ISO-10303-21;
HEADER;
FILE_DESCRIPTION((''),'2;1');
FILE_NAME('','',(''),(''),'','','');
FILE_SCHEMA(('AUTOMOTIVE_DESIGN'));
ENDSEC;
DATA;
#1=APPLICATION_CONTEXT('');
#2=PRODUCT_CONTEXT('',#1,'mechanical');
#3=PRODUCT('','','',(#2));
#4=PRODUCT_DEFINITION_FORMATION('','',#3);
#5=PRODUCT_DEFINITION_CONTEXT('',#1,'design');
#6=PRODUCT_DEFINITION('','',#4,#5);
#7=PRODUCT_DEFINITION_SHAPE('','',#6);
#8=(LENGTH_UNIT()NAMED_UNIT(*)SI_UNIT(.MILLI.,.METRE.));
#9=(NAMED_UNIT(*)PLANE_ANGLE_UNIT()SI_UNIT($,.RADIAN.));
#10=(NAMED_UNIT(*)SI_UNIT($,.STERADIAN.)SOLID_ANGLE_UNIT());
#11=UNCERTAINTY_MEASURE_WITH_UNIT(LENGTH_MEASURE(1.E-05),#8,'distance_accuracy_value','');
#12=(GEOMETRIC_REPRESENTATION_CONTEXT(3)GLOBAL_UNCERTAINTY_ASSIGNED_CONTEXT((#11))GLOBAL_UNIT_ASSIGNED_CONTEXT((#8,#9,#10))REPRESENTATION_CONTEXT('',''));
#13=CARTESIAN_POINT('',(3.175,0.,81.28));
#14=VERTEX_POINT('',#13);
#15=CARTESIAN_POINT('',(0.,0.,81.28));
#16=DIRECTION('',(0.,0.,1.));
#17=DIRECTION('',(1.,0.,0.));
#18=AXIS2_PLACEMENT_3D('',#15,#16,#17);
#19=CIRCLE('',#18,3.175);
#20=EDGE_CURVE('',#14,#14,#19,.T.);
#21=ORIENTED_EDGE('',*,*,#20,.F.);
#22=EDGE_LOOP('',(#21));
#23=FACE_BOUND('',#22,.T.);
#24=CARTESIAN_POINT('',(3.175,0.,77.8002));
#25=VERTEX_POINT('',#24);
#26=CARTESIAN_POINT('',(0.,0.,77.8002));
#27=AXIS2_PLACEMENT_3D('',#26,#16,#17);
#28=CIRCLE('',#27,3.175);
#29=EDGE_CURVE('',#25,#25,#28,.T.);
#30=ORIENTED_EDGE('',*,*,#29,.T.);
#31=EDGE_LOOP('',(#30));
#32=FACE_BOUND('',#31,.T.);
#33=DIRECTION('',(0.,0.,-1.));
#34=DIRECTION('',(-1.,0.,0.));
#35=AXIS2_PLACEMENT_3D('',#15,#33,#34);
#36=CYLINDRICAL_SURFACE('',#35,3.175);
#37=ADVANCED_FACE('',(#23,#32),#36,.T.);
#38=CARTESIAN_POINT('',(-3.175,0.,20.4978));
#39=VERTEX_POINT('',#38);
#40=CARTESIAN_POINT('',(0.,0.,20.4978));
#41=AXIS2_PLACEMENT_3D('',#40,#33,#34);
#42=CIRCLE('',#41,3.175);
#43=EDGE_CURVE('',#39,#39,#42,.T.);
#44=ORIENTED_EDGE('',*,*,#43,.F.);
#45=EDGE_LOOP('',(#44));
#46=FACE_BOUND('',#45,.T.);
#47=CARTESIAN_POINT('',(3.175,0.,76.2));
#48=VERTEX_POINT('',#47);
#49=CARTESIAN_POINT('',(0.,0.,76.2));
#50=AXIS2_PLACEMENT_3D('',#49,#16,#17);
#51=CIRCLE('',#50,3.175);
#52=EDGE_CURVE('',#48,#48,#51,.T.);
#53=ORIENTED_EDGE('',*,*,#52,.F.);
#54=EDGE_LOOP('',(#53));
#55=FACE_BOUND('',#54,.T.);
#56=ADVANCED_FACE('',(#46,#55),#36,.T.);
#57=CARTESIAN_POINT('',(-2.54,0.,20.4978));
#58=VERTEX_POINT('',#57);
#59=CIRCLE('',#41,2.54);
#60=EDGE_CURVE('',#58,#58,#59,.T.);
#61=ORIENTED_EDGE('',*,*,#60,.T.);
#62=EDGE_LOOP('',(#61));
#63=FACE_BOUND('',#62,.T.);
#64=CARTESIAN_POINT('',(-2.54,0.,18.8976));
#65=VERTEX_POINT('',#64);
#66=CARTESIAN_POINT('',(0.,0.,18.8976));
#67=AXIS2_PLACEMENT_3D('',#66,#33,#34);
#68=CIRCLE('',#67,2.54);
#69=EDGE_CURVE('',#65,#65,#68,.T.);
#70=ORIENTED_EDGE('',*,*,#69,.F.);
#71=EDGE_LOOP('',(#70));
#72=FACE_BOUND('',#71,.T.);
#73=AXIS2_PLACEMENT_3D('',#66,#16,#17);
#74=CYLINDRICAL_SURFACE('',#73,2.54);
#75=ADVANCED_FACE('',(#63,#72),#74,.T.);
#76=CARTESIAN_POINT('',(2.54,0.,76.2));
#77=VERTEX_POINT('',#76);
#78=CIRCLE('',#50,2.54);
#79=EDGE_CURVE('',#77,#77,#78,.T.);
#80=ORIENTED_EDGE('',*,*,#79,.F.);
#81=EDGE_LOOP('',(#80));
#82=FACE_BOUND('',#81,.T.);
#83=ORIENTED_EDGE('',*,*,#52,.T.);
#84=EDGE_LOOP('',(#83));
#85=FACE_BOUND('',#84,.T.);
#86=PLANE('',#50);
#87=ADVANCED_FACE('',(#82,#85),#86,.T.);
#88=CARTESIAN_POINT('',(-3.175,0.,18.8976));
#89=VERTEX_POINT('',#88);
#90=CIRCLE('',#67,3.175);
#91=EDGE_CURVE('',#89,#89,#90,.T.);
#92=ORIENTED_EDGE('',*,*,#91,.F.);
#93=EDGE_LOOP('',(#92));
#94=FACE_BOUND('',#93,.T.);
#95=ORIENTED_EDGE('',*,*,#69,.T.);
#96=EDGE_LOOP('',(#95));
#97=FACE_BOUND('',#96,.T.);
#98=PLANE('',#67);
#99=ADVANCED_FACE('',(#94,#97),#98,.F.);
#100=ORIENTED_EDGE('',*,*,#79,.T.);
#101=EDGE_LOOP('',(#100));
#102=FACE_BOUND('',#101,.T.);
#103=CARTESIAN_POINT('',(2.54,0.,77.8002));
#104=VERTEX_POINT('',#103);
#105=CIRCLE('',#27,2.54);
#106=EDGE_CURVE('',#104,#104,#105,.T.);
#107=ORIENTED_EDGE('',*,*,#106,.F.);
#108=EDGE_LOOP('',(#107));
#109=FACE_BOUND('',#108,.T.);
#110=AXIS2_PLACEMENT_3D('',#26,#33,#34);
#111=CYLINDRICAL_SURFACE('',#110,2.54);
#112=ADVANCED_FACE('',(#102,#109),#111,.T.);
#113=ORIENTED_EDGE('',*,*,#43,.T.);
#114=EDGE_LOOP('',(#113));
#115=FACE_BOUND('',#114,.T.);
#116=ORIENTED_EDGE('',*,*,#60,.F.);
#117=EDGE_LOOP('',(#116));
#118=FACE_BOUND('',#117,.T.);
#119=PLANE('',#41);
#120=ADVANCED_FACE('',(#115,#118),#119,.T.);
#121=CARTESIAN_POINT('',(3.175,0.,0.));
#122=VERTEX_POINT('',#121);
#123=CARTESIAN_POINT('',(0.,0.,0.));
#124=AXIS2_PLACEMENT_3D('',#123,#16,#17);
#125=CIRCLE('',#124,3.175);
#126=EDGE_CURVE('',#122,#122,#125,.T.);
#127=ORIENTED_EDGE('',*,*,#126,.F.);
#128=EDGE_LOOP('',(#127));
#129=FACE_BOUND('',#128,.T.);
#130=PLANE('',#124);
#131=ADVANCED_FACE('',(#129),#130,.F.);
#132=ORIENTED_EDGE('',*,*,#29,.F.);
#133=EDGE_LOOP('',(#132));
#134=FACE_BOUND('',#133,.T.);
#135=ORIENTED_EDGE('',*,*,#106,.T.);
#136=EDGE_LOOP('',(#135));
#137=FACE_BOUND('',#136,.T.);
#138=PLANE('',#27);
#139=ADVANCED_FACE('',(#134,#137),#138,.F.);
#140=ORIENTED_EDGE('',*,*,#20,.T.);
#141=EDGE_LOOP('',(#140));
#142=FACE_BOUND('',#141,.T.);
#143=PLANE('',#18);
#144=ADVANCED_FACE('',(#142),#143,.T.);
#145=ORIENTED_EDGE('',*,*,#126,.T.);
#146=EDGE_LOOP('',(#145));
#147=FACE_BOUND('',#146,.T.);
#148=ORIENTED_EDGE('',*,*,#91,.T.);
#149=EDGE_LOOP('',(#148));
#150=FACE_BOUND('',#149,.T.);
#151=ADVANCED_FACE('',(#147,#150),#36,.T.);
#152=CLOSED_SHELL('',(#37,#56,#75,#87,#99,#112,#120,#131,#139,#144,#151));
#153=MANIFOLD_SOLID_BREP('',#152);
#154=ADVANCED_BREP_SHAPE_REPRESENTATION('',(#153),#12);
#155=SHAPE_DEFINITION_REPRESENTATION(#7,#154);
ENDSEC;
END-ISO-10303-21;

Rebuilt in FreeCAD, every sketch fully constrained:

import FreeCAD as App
import Part
import Sketcher
from FreeCAD import Vector
Q = App.Units.Quantity


def add_polygon(sketch, points):
    """Adds a closed chain of lines whose ends are joined by coincident constraints."""
    first, n = sketch.GeometryCount, len(points)
    for a, b in zip(points, points[1:] + points[:1]):
        sketch.addGeometry(Part.LineSegment(App.Vector(*a, 0), App.Vector(*b, 0)), False)
    for i in range(n):
        sketch.addConstraint(Sketcher.Constraint("Coincident", first + i, 2, first + (i + 1) % n, 1))

doc = App.newDocument("Part")
body = doc.addObject("PartDesign::Body", "Body")

# Sketch on XY plane
sketch1 = body.newObject("Sketcher::SketchObject", "Sketch")
sketch1.AttachmentSupport = (doc.getObject("XY_Plane"), [""])
sketch1.MapMode = "FlatFace"
sketch1.addGeometry(Part.Circle(Vector(0, 0, 0), Vector(0, 0, 1), 3.175), False)
sketch1.addConstraint([
    Sketcher.Constraint("Coincident", 0, 3, -1, 1),
    Sketcher.Constraint("Diameter", 0, Q("0.25 in")),
])
pad1 = body.newObject("PartDesign::Pad", "Pad")
pad1.Profile = sketch1
pad1.Length = Q("3.2 in")

# Sketch on XY plane
sketch2 = body.newObject("Sketcher::SketchObject", "Sketch001")
sketch2.AttachmentSupport = (doc.getObject("XY_Plane"), [""])
sketch2.MapMode = "FlatFace"
sketch2.AttachmentOffset = App.Placement(Vector(0, 0, 0.807 * 25.4), App.Rotation())
add_polygon(sketch2, [(12.352, 12.352), (12.352, -12.352), (-12.352, -12.352), (-12.352, 12.352)])  # lines 0-3
sketch2.addGeometry(Part.Circle(Vector(0, 0, 0), Vector(0, 0, 1), 2.54), False)  # 4
sketch2.addConstraint([
    Sketcher.Constraint("Vertical", 0),
    Sketcher.Constraint("Horizontal", 1),
    Sketcher.Constraint("Vertical", 2),
    Sketcher.Constraint("Horizontal", 3),
    Sketcher.Constraint("Coincident", 4, 3, -1, 1),
    Sketcher.Constraint("Symmetric", 0, 2, 2, 2, -1, 1),
    Sketcher.Constraint("Equal", 3, 0),
    Sketcher.Constraint("Diameter", 4, Q("0.2 in")),
    Sketcher.Constraint("DistanceX", 1, 2, 1, 1, 24.704),
])
pocket1 = body.newObject("PartDesign::Pocket", "Pocket")
pocket1.Profile = sketch2
pocket1.Length = Q("0.063 in")

# Sketch on XY plane
sketch3 = body.newObject("Sketcher::SketchObject", "Sketch002")
sketch3.AttachmentSupport = (doc.getObject("XY_Plane"), [""])
sketch3.MapMode = "FlatFace"
sketch3.AttachmentOffset = App.Placement(Vector(0, 0, 3 * 25.4), App.Rotation())
add_polygon(sketch3, [(-12.352, 12.352), (-12.352, -12.352), (12.352, -12.352), (12.352, 12.352)])  # lines 0-3
sketch3.addGeometry(Part.Circle(Vector(0, 0, 0), Vector(0, 0, 1), 2.54), False)  # 4
sketch3.addConstraint([
    Sketcher.Constraint("Vertical", 0),
    Sketcher.Constraint("Horizontal", 1),
    Sketcher.Constraint("Vertical", 2),
    Sketcher.Constraint("Horizontal", 3),
    Sketcher.Constraint("Coincident", 4, 3, -1, 1),
    Sketcher.Constraint("Symmetric", 0, 2, 2, 2, -1, 1),
    Sketcher.Constraint("Equal", 3, 0),
    Sketcher.Constraint("Diameter", 4, Q("0.2 in")),
    Sketcher.Constraint("DistanceX", 1, 1, 1, 2, 24.704),
])
pocket2 = body.newObject("PartDesign::Pocket", "Pocket001")
pocket2.Profile = sketch3
pocket2.Length = Q("0.063 in")
pocket2.Reversed = True

doc.recompute()
